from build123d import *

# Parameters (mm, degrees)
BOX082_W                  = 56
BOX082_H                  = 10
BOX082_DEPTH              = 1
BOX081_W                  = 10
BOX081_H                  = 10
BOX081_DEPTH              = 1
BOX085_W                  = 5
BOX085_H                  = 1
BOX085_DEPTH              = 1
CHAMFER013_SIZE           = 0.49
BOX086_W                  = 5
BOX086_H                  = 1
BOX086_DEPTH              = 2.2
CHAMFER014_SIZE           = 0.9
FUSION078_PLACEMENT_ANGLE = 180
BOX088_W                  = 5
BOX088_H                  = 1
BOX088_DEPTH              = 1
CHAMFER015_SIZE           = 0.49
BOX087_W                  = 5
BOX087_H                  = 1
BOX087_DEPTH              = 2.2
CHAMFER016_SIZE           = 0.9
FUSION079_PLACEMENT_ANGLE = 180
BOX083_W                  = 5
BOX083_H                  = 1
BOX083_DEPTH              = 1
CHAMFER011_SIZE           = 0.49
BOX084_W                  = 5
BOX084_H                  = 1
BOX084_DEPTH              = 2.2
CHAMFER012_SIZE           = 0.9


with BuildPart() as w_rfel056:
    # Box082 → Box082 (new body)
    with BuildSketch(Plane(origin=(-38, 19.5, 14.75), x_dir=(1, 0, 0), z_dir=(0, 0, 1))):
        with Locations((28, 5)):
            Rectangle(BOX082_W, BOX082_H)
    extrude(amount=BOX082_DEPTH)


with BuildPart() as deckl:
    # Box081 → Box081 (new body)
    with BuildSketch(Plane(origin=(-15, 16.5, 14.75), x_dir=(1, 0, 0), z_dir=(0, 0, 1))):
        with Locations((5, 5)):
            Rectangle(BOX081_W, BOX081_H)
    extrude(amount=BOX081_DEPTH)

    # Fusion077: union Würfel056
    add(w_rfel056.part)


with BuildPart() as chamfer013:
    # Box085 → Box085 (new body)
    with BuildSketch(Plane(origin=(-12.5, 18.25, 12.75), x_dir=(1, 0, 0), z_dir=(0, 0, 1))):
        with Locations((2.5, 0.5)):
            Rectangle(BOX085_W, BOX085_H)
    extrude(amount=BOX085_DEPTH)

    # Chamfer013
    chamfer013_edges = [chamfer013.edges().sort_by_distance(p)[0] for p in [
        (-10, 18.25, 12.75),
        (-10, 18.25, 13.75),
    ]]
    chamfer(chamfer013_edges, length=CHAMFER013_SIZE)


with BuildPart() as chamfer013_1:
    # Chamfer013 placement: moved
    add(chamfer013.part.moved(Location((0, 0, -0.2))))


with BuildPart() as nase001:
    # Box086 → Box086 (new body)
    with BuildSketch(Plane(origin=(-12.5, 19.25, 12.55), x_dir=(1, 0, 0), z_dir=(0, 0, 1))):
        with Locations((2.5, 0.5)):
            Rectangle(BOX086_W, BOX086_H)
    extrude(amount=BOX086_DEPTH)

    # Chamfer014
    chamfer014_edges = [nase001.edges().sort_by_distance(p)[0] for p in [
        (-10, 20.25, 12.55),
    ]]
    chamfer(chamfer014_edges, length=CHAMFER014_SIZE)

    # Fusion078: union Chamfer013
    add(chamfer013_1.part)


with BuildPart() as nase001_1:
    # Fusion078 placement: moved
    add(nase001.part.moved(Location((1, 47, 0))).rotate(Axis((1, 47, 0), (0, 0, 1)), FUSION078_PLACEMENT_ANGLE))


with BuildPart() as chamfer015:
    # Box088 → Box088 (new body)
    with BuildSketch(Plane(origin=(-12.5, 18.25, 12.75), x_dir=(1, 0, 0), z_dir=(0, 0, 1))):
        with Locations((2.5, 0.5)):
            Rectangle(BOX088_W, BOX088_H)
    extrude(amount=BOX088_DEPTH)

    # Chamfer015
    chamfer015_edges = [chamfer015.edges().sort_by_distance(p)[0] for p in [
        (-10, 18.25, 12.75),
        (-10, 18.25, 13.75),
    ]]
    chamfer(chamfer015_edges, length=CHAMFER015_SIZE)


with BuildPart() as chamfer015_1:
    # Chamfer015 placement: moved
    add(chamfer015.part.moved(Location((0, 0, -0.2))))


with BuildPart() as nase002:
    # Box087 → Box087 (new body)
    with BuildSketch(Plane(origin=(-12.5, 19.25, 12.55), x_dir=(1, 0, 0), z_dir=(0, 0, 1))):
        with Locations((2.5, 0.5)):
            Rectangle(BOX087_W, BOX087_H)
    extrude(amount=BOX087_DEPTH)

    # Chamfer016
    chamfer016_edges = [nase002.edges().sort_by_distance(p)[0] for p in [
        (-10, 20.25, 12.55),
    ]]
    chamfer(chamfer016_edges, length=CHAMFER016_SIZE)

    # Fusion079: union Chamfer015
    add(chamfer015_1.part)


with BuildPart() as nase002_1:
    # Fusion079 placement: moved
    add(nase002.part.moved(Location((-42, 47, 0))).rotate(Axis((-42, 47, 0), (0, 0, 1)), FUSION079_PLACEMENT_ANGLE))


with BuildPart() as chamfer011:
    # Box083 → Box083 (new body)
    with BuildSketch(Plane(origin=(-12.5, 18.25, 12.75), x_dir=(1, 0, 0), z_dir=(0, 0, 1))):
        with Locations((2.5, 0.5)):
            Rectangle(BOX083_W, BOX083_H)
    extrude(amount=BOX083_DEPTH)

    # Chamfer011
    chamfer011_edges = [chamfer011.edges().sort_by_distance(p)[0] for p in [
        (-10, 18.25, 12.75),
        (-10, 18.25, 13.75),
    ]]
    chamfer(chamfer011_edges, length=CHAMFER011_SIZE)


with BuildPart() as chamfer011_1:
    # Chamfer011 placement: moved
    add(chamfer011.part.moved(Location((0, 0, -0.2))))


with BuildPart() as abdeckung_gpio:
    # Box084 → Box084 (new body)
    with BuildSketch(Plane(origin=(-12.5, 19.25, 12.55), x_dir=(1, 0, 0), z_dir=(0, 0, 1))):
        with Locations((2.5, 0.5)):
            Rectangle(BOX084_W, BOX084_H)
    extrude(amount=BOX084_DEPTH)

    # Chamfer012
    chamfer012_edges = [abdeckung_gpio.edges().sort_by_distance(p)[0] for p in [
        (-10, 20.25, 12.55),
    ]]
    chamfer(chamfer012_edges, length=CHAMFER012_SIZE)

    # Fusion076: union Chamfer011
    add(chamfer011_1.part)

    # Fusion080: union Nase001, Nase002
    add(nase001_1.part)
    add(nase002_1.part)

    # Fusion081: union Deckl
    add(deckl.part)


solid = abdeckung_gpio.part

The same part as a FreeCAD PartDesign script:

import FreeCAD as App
import Part
import Sketcher
from FreeCAD import Vector


def edges_at(feature, points):
    """Names of the edges that pass closest to the given points."""
    edges = feature.Shape.Edges
    near = lambda p: min(range(len(edges)), key=lambda i: edges[i].distToShape(Part.Vertex(*p))[0])
    return sorted({f"Edge{near(p) + 1}" for p in points})


def add_polygon(sketch, points):
    """Adds a closed chain of lines whose ends are joined by coincident constraints."""
    first, n = sketch.GeometryCount, len(points)
    for a, b in zip(points, points[1:] + points[:1]):
        sketch.addGeometry(Part.LineSegment(App.Vector(*a, 0), App.Vector(*b, 0)), False)
    for i in range(n):
        sketch.addConstraint(Sketcher.Constraint("Coincident", first + i, 2, first + (i + 1) % n, 1))

doc = App.newDocument("Part")
body = doc.addObject("PartDesign::Body", "Body")

# Sketch on XY plane
sketch1 = body.newObject("Sketcher::SketchObject", "Sketch")
sketch1.AttachmentSupport = (doc.getObject("XY_Plane"), [""])
sketch1.MapMode = "FlatFace"
sketch1.AttachmentOffset = App.Placement(Vector(0, 0, 14.75), App.Rotation())
add_polygon(sketch1, [(-38, 30), (-38, 20), (18, 20), (18, 30)])  # lines 0-3
sketch1.addConstraint([
    Sketcher.Constraint("Vertical", 0),
    Sketcher.Constraint("Horizontal", 1),
    Sketcher.Constraint("Vertical", 2),
    Sketcher.Constraint("Horizontal", 3),
    Sketcher.Constraint("DistanceX", 1, 1, 1, 2, 56.0),
    Sketcher.Constraint("DistanceY", 0, 2, 0, 1, 10.0),
    Sketcher.Constraint("DistanceX", 0, 2, -1, 1, 38.0),
    Sketcher.Constraint("DistanceY", -1, 1, 0, 2, 19.5),
])
pad1 = body.newObject("PartDesign::Pad", "Pad")
pad1.Profile = sketch1
pad1.Length = 1
body2 = doc.addObject("PartDesign::Body", "Body001")

# Sketch on XY plane
sketch2 = body2.newObject("Sketcher::SketchObject", "Sketch001")
sketch2.AttachmentSupport = (doc.getObject("XY_Plane001"), [""])
sketch2.MapMode = "FlatFace"
sketch2.AttachmentOffset = App.Placement(Vector(0, 0, 14.75), App.Rotation())
add_polygon(sketch2, [(-15, 26), (-15, 16), (-5, 16), (-5, 26)])  # lines 0-3
sketch2.addConstraint([
    Sketcher.Constraint("Vertical", 0),
    Sketcher.Constraint("Horizontal", 1),
    Sketcher.Constraint("Vertical", 2),
    Sketcher.Constraint("Horizontal", 3),
    Sketcher.Constraint("Equal", 3, 0),
    Sketcher.Constraint("DistanceX", 1, 1, 1, 2, 10.0),
    Sketcher.Constraint("DistanceX", 0, 2, -1, 1, 15.0),
    Sketcher.Constraint("DistanceY", -1, 1, 0, 2, 16.5),
])
pad2 = body2.newObject("PartDesign::Pad", "Pad001")
pad2.Profile = sketch2
pad2.Length = 1
doc.recompute()

boolean = body2.newObject("PartDesign::Boolean", "Boolean")
boolean.Type = "Fuse"
boolean.addObjects([body])
body3 = doc.addObject("PartDesign::Body", "Body002")

# Sketch on XY plane
sketch3 = body3.newObject("Sketcher::SketchObject", "Sketch002")
sketch3.AttachmentSupport = (doc.getObject("XY_Plane002"), [""])
sketch3.MapMode = "FlatFace"
sketch3.AttachmentOffset = App.Placement(Vector(0, 0, 12.75), App.Rotation())
add_polygon(sketch3, [(-12.5, 19.2), (-12.5, 18.2), (-7.5, 18.2), (-7.5, 19.2)])  # lines 0-3
sketch3.addConstraint([
    Sketcher.Constraint("Vertical", 0),
    Sketcher.Constraint("Horizontal", 1),
    Sketcher.Constraint("Vertical", 2),
    Sketcher.Constraint("Horizontal", 3),
    Sketcher.Constraint("DistanceX", 1, 1, 1, 2, 5.0),
    Sketcher.Constraint("DistanceY", 0, 2, 0, 1, 1.0),
    Sketcher.Constraint("DistanceX", 0, 2, -1, 1, 12.5),
    Sketcher.Constraint("DistanceY", -1, 1, 0, 2, 18.25),
])
pad3 = body3.newObject("PartDesign::Pad", "Pad002")
pad3.Profile = sketch3
pad3.Length = 1
doc.recompute()

chamfer = body3.newObject("PartDesign::Chamfer", "Chamfer")
chamfer.Base = (pad3, edges_at(pad3, [(-10, 18.25, 12.75), (-10, 18.25, 13.75)]))
chamfer.Size = 0.49
body4 = doc.addObject("PartDesign::Body", "Body003")
doc.recompute()

body3.Placement = App.Placement(Vector(0, 0, -0.2), App.Rotation(Vector(0, 0, 1), 0))
boolean2 = body4.newObject("PartDesign::Boolean", "Boolean001")
boolean2.Type = "Fuse"
boolean2.addObjects([body3])
body5 = doc.addObject("PartDesign::Body", "Body004")

# Sketch on XY plane
sketch4 = body5.newObject("Sketcher::SketchObject", "Sketch003")
sketch4.AttachmentSupport = (doc.getObject("XY_Plane004"), [""])
sketch4.MapMode = "FlatFace"
sketch4.AttachmentOffset = App.Placement(Vector(0, 0, 12.55), App.Rotation())
add_polygon(sketch4, [(-12.5, 20.2), (-12.5, 19.2), (-7.5, 19.2), (-7.5, 20.2)])  # lines 0-3
sketch4.addConstraint([
    Sketcher.Constraint("Vertical", 0),
    Sketcher.Constraint("Horizontal", 1),
    Sketcher.Constraint("Vertical", 2),
    Sketcher.Constraint("Horizontal", 3),
    Sketcher.Constraint("DistanceX", 1, 1, 1, 2, 5.0),
    Sketcher.Constraint("DistanceY", 0, 2, 0, 1, 1.0),
    Sketcher.Constraint("DistanceX", 0, 2, -1, 1, 12.5),
    Sketcher.Constraint("DistanceY", -1, 1, 0, 2, 19.25),
])
pad4 = body5.newObject("PartDesign::Pad", "Pad003")
pad4.Profile = sketch4
pad4.Length = 2.2
doc.recompute()

chamfer2 = body5.newObject("PartDesign::Chamfer", "Chamfer001")
chamfer2.Base = (pad4, edges_at(pad4, [(-10, 20.25, 12.55)]))
chamfer2.Size = 0.9
doc.recompute()

boolean3 = body5.newObject("PartDesign::Boolean", "Boolean002")
boolean3.Type = "Fuse"
boolean3.addObjects([body4])
body6 = doc.addObject("PartDesign::Body", "Body005")
doc.recompute()

body5.Placement = App.Placement(Vector(1, 47, 0), App.Rotation(Vector(0, 0, 1), 180))
boolean4 = body6.newObject("PartDesign::Boolean", "Boolean003")
boolean4.Type = "Fuse"
boolean4.addObjects([body5])
body7 = doc.addObject("PartDesign::Body", "Body006")

# Sketch on XY plane
sketch5 = body7.newObject("Sketcher::SketchObject", "Sketch004")
sketch5.AttachmentSupport = (doc.getObject("XY_Plane006"), [""])
sketch5.MapMode = "FlatFace"
sketch5.AttachmentOffset = App.Placement(Vector(0, 0, 12.75), App.Rotation())
add_polygon(sketch5, [(-12.5, 19.2), (-12.5, 18.2), (-7.5, 18.2), (-7.5, 19.2)])  # lines 0-3
sketch5.addConstraint([
    Sketcher.Constraint("Vertical", 0),
    Sketcher.Constraint("Horizontal", 1),
    Sketcher.Constraint("Vertical", 2),
    Sketcher.Constraint("Horizontal", 3),
    Sketcher.Constraint("DistanceX", 1, 1, 1, 2, 5.0),
    Sketcher.Constraint("DistanceY", 0, 2, 0, 1, 1.0),
    Sketcher.Constraint("DistanceX", 0, 2, -1, 1, 12.5),
    Sketcher.Constraint("DistanceY", -1, 1, 0, 2, 18.25),
])
pad5 = body7.newObject("PartDesign::Pad", "Pad004")
pad5.Profile = sketch5
pad5.Length = 1
doc.recompute()

chamfer3 = body7.newObject("PartDesign::Chamfer", "Chamfer002")
chamfer3.Base = (pad5, edges_at(pad5, [(-10, 18.25, 12.75), (-10, 18.25, 13.75)]))
chamfer3.Size = 0.49
body8 = doc.addObject("PartDesign::Body", "Body007")
doc.recompute()

body7.Placement = App.Placement(Vector(0, 0, -0.2), App.Rotation(Vector(0, 0, 1), 0))
boolean5 = body8.newObject("PartDesign::Boolean", "Boolean004")
boolean5.Type = "Fuse"
boolean5.addObjects([body7])
body9 = doc.addObject("PartDesign::Body", "Body008")

# Sketch on XY plane
sketch6 = body9.newObject("Sketcher::SketchObject", "Sketch005")
sketch6.AttachmentSupport = (doc.getObject("XY_Plane008"), [""])
sketch6.MapMode = "FlatFace"
sketch6.AttachmentOffset = App.Placement(Vector(0, 0, 12.55), App.Rotation())
add_polygon(sketch6, [(-12.5, 20.2), (-12.5, 19.2), (-7.5, 19.2), (-7.5, 20.2)])  # lines 0-3
sketch6.addConstraint([
    Sketcher.Constraint("Vertical", 0),
    Sketcher.Constraint("Horizontal", 1),
    Sketcher.Constraint("Vertical", 2),
    Sketcher.Constraint("Horizontal", 3),
    Sketcher.Constraint("DistanceX", 1, 1, 1, 2, 5.0),
    Sketcher.Constraint("DistanceY", 0, 2, 0, 1, 1.0),
    Sketcher.Constraint("DistanceX", 0, 2, -1, 1, 12.5),
    Sketcher.Constraint("DistanceY", -1, 1, 0, 2, 19.25),
])
pad6 = body9.newObject("PartDesign::Pad", "Pad005")
pad6.Profile = sketch6
pad6.Length = 2.2
doc.recompute()

chamfer4 = body9.newObject("PartDesign::Chamfer", "Chamfer003")
chamfer4.Base = (pad6, edges_at(pad6, [(-10, 20.25, 12.55)]))
chamfer4.Size = 0.9
doc.recompute()

boolean6 = body9.newObject("PartDesign::Boolean", "Boolean005")
boolean6.Type = "Fuse"
boolean6.addObjects([body8])
body10 = doc.addObject("PartDesign::Body", "Body009")
doc.recompute()

body9.Placement = App.Placement(Vector(-42, 47, 0), App.Rotation(Vector(0, 0, 1), 180))
boolean7 = body10.newObject("PartDesign::Boolean", "Boolean006")
boolean7.Type = "Fuse"
boolean7.addObjects([body9])
body11 = doc.addObject("PartDesign::Body", "Body010")

# Sketch on XY plane
sketch7 = body11.newObject("Sketcher::SketchObject", "Sketch006")
sketch7.AttachmentSupport = (doc.getObject("XY_Plane010"), [""])
sketch7.MapMode = "FlatFace"
sketch7.AttachmentOffset = App.Placement(Vector(0, 0, 12.75), App.Rotation())
add_polygon(sketch7, [(-12.5, 19.2), (-12.5, 18.2), (-7.5, 18.2), (-7.5, 19.2)])  # lines 0-3
sketch7.addConstraint([
    Sketcher.Constraint("Vertical", 0),
    Sketcher.Constraint("Horizontal", 1),
    Sketcher.Constraint("Vertical", 2),
    Sketcher.Constraint("Horizontal", 3),
    Sketcher.Constraint("DistanceX", 1, 1, 1, 2, 5.0),
    Sketcher.Constraint("DistanceY", 0, 2, 0, 1, 1.0),
    Sketcher.Constraint("DistanceX", 0, 2, -1, 1, 12.5),
    Sketcher.Constraint("DistanceY", -1, 1, 0, 2, 18.25),
])
pad7 = body11.newObject("PartDesign::Pad", "Pad006")
pad7.Profile = sketch7
pad7.Length = 1
doc.recompute()

chamfer5 = body11.newObject("PartDesign::Chamfer", "Chamfer004")
chamfer5.Base = (pad7, edges_at(pad7, [(-10, 18.25, 12.75), (-10, 18.25, 13.75)]))
chamfer5.Size = 0.49
body12 = doc.addObject("PartDesign::Body", "Body011")
doc.recompute()

body11.Placement = App.Placement(Vector(0, 0, -0.2), App.Rotation(Vector(0, 0, 1), 0))
boolean8 = body12.newObject("PartDesign::Boolean", "Boolean007")
boolean8.Type = "Fuse"
boolean8.addObjects([body11])
body13 = doc.addObject("PartDesign::Body", "Body012")
body13.AllowCompound = True

# Sketch on XY plane
sketch8 = body13.newObject("Sketcher::SketchObject", "Sketch007")
sketch8.AttachmentSupport = (doc.getObject("XY_Plane012"), [""])
sketch8.MapMode = "FlatFace"
sketch8.AttachmentOffset = App.Placement(Vector(0, 0, 12.55), App.Rotation())
add_polygon(sketch8, [(-12.5, 20.2), (-12.5, 19.2), (-7.5, 19.2), (-7.5, 20.2)])  # lines 0-3
sketch8.addConstraint([
    Sketcher.Constraint("Vertical", 0),
    Sketcher.Constraint("Horizontal", 1),
    Sketcher.Constraint("Vertical", 2),
    Sketcher.Constraint("Horizontal", 3),
    Sketcher.Constraint("DistanceX", 1, 1, 1, 2, 5.0),
    Sketcher.Constraint("DistanceY", 0, 2, 0, 1, 1.0),
    Sketcher.Constraint("DistanceX", 0, 2, -1, 1, 12.5),
    Sketcher.Constraint("DistanceY", -1, 1, 0, 2, 19.25),
])
pad8 = body13.newObject("PartDesign::Pad", "Pad007")
pad8.Profile = sketch8
pad8.Length = 2.2
doc.recompute()

chamfer6 = body13.newObject("PartDesign::Chamfer", "Chamfer005")
chamfer6.Base = (pad8, edges_at(pad8, [(-10, 20.25, 12.55)]))
chamfer6.Size = 0.9
doc.recompute()

boolean9 = body13.newObject("PartDesign::Boolean", "Boolean008")
boolean9.Type = "Fuse"
boolean9.addObjects([body12])
doc.recompute()

boolean10 = body13.newObject("PartDesign::Boolean", "Boolean009")
boolean10.Type = "Fuse"
boolean10.addObjects([body6])
doc.recompute()

boolean11 = body13.newObject("PartDesign::Boolean", "Boolean010")
boolean11.Type = "Fuse"
boolean11.addObjects([body10])
doc.recompute()

boolean12 = body13.newObject("PartDesign::Boolean", "Boolean011")
boolean12.Type = "Fuse"
boolean12.addObjects([body2])

doc.recompute()
